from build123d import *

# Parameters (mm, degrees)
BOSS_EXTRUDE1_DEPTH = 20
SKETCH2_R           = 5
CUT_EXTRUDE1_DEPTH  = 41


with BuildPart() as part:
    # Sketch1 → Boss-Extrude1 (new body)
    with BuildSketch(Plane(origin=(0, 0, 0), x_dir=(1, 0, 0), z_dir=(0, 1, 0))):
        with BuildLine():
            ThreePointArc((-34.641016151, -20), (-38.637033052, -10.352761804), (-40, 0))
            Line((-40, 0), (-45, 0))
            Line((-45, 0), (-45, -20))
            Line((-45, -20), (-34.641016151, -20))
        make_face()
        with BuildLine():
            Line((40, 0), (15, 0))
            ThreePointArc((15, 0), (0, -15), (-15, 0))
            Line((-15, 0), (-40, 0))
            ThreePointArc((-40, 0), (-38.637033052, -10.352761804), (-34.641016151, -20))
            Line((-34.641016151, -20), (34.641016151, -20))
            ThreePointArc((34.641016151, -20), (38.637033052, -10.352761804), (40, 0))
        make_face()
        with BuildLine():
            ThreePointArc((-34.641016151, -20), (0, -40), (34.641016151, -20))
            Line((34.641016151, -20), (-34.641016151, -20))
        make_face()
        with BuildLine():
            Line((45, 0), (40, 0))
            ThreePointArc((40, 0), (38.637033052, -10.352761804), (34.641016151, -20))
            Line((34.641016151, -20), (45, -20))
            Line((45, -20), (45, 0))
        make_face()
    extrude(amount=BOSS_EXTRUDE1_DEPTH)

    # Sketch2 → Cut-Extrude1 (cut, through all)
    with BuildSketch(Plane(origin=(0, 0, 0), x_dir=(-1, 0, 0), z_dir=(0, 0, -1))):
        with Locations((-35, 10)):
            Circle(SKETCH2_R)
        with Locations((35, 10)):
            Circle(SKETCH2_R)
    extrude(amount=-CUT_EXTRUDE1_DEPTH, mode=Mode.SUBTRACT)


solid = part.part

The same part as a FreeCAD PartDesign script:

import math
import FreeCAD as App
import Part
import Sketcher

doc = App.newDocument("Part")
body = doc.addObject("PartDesign::Body", "Body")

sketch1 = body.newObject("Sketcher::SketchObject", "Sketch")
sketch1.AttachmentSupport = (doc.getObject("XZ_Plane"), [""])
sketch1.MapMode = "FlatFace"
sketch1.addGeometry([
    Part.LineSegment(App.Vector(-45, 0, 0), App.Vector(-45, 20, 0)),
    Part.LineSegment(App.Vector(-45, 20, 0), App.Vector(-34.641016, 20, 0)),
    Part.ArcOfCircle(Part.Circle(App.Vector(0, 0, 0), App.Vector(0, 0, 1), 40), math.radians(30), math.radians(150)),
    Part.LineSegment(App.Vector(34.641016, 20, 0), App.Vector(45, 20, 0)),
    Part.LineSegment(App.Vector(45, 20, 0), App.Vector(45, 0, 0)),
    Part.LineSegment(App.Vector(45, 0, 0), App.Vector(15, 0, 0)),
    Part.ArcOfCircle(Part.Circle(App.Vector(0, 0, 0), App.Vector(0, 0, 1), 15), math.radians(0), math.radians(180)),
    Part.LineSegment(App.Vector(-15, 0, 0), App.Vector(-45, 0, 0)),
], False)
sketch1.addConstraint([
    Sketcher.Constraint("Coincident", 0, 2, 1, 1),
    Sketcher.Constraint("Coincident", 1, 2, 2, 2),
    Sketcher.Constraint("Coincident", 2, 1, 3, 1),
    Sketcher.Constraint("Coincident", 3, 2, 4, 1),
    Sketcher.Constraint("Coincident", 4, 2, 5, 1),
    Sketcher.Constraint("Coincident", 5, 2, 6, 1),
    Sketcher.Constraint("Coincident", 6, 2, 7, 1),
    Sketcher.Constraint("Coincident", 7, 2, 0, 1),
    Sketcher.Constraint("Vertical", 0),
    Sketcher.Constraint("Horizontal", 1),
    Sketcher.Constraint("Horizontal", 3),
    Sketcher.Constraint("Vertical", 4),
    Sketcher.Constraint("Horizontal", 5),
    Sketcher.Constraint("Horizontal", 7),
    Sketcher.Constraint("Coincident", 2, 3, -1, 1),
    Sketcher.Constraint("Coincident", 6, 3, -1, 1),
    Sketcher.Constraint("Symmetric", 4, 2, 7, 2, -1, 1),
    Sketcher.Constraint("PointOnObject", 4, 2, -1),
    Sketcher.Constraint("Horizontal", 1, 2, 2, 1),
    Sketcher.Constraint("Radius", 2, 40.0),
    Sketcher.Constraint("Radius", 6, 15.0),
    Sketcher.Constraint("DistanceX", 5, 2, 5, 1, 30.0),
    Sketcher.Constraint("DistanceY", 0, 1, 0, 2, 20.0),
])
pad1 = body.newObject("PartDesign::Pad", "Pad")
pad1.Profile = sketch1
pad1.Length = 20
pad1.Reversed = True

sketch2 = body.newObject("Sketcher::SketchObject", "Sketch001")
sketch2.AttachmentSupport = (doc.getObject("XY_Plane"), [""])
sketch2.MapMode = "FlatFace"
sketch2.addGeometry([
    Part.Circle(App.Vector(35, 10, 0), App.Vector(0, 0, 1), 5),
    Part.Circle(App.Vector(-35, 10, 0), App.Vector(0, 0, 1), 5),
], False)
sketch2.addConstraint([
    Sketcher.Constraint("Equal", 0, 1),
    Sketcher.Constraint("Symmetric", 0, 3, 1, 3, -2),
    Sketcher.Constraint("Diameter", 0, 10.0),
    Sketcher.Constraint("DistanceX", -1, 1, 0, 3, 35.0),
    Sketcher.Constraint("DistanceY", -1, 1, 0, 3, 10.0),
])
pocket1 = body.newObject("PartDesign::Pocket", "Pocket")
pocket1.Profile = sketch2
pocket1.Type = "ThroughAll"
pocket1.Reversed = True

doc.recompute()
